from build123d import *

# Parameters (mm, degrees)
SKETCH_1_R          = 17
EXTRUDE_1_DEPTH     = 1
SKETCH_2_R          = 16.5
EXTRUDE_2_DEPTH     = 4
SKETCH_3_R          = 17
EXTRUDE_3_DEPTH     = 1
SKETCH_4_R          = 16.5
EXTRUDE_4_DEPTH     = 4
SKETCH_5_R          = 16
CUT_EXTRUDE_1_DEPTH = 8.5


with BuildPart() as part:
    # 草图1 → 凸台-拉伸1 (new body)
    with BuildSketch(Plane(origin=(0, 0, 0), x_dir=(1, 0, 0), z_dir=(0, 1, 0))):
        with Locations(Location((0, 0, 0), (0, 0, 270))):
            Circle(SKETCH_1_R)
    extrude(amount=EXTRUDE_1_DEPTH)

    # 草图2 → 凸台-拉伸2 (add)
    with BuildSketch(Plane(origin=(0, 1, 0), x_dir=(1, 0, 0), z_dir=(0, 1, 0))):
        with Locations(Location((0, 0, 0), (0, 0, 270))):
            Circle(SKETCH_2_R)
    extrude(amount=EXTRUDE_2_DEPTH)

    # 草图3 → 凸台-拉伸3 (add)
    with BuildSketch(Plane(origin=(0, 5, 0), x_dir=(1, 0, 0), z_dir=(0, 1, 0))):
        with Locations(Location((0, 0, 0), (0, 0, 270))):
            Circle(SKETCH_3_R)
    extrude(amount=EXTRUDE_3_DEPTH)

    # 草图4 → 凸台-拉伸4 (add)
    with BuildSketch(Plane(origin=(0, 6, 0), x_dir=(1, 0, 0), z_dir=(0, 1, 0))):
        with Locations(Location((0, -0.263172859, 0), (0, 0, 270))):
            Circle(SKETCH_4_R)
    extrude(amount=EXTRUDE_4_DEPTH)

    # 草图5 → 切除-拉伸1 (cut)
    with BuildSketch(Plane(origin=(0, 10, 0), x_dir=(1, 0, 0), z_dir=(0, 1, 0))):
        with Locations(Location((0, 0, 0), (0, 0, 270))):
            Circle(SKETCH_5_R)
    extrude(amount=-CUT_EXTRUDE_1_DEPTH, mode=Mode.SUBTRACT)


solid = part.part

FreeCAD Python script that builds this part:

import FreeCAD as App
import Part
import Sketcher
from FreeCAD import Vector

doc = App.newDocument("Part")
body = doc.addObject("PartDesign::Body", "Body")

sketch1 = doc.addObject("Sketcher::SketchObject", "Sketch")
body.addObject(sketch1)
sketch1.AttachmentSupport = (doc.XZ_Plane, [""])
sketch1.MapMode = "FlatFace"
sketch1.addGeometry(Part.Circle(Vector(0, 0, 0), Vector(0, 0, 1), 17), False)
sketch1.addConstraint([
    Sketcher.Constraint("Coincident", 0, 3, -1, 1),
    Sketcher.Constraint("Diameter", 0, 34.0),
])
pad1 = doc.addObject("PartDesign::Pad", "Pad")
body.addObject(pad1)
pad1.Profile = sketch1
pad1.Length = 1
pad1.Reversed = True

sketch2 = doc.addObject("Sketcher::SketchObject", "Sketch001")
body.addObject(sketch2)
sketch2.AttachmentSupport = (doc.XZ_Plane, [""])
sketch2.MapMode = "FlatFace"
sketch2.AttachmentOffset = App.Placement(Vector(0, 0, -1), App.Rotation())
sketch2.addGeometry(Part.Circle(Vector(0, 0, 0), Vector(0, 0, 1), 16), False)
sketch2.addConstraint([
    Sketcher.Constraint("Coincident", 0, 3, -1, 1),
    Sketcher.Constraint("Diameter", 0, 33.0),
])
pad2 = doc.addObject("PartDesign::Pad", "Pad001")
body.addObject(pad2)
pad2.Profile = sketch2
pad2.Length = 4
pad2.Reversed = True

sketch3 = doc.addObject("Sketcher::SketchObject", "Sketch002")
body.addObject(sketch3)
sketch3.AttachmentSupport = (doc.XZ_Plane, [""])
sketch3.MapMode = "FlatFace"
sketch3.AttachmentOffset = App.Placement(Vector(0, 0, -5), App.Rotation())
sketch3.addGeometry(Part.Circle(Vector(0, 0, 0), Vector(0, 0, 1), 17), False)
sketch3.addConstraint([
    Sketcher.Constraint("Coincident", 0, 3, -1, 1),
    Sketcher.Constraint("Diameter", 0, 34.0),
])
pad3 = doc.addObject("PartDesign::Pad", "Pad002")
body.addObject(pad3)
pad3.Profile = sketch3
pad3.Length = 1
pad3.Reversed = True

sketch4 = doc.addObject("Sketcher::SketchObject", "Sketch003")
body.addObject(sketch4)
sketch4.AttachmentSupport = (doc.XZ_Plane, [""])
sketch4.MapMode = "FlatFace"
sketch4.AttachmentOffset = App.Placement(Vector(0, 0, -6), App.Rotation())
sketch4.addGeometry(Part.Circle(Vector(0, 0, 0), Vector(0, 0, 1), 16), False)
sketch4.addConstraint([
    Sketcher.Constraint("PointOnObject", 0, 3, -2),
    Sketcher.Constraint("Diameter", 0, 33.0),
    Sketcher.Constraint("DistanceY", -1, 1, 0, 3, 0.263173),
])
pad4 = doc.addObject("PartDesign::Pad", "Pad003")
body.addObject(pad4)
pad4.Profile = sketch4
pad4.Length = 4
pad4.Reversed = True

sketch5 = doc.addObject("Sketcher::SketchObject", "Sketch004")
body.addObject(sketch5)
sketch5.AttachmentSupport = (doc.XZ_Plane, [""])
sketch5.MapMode = "FlatFace"
sketch5.AttachmentOffset = App.Placement(Vector(0, 0, -10), App.Rotation())
sketch5.addGeometry(Part.Circle(Vector(0, 0, 0), Vector(0, 0, 1), 16), False)
sketch5.addConstraint([
    Sketcher.Constraint("Coincident", 0, 3, -1, 1),
    Sketcher.Constraint("Diameter", 0, 32.0),
])
pocket1 = doc.addObject("PartDesign::Pocket", "Pocket")
body.addObject(pocket1)
pocket1.Profile = sketch5
pocket1.Length = 8.5
pocket1.Reversed = True

doc.recompute()
